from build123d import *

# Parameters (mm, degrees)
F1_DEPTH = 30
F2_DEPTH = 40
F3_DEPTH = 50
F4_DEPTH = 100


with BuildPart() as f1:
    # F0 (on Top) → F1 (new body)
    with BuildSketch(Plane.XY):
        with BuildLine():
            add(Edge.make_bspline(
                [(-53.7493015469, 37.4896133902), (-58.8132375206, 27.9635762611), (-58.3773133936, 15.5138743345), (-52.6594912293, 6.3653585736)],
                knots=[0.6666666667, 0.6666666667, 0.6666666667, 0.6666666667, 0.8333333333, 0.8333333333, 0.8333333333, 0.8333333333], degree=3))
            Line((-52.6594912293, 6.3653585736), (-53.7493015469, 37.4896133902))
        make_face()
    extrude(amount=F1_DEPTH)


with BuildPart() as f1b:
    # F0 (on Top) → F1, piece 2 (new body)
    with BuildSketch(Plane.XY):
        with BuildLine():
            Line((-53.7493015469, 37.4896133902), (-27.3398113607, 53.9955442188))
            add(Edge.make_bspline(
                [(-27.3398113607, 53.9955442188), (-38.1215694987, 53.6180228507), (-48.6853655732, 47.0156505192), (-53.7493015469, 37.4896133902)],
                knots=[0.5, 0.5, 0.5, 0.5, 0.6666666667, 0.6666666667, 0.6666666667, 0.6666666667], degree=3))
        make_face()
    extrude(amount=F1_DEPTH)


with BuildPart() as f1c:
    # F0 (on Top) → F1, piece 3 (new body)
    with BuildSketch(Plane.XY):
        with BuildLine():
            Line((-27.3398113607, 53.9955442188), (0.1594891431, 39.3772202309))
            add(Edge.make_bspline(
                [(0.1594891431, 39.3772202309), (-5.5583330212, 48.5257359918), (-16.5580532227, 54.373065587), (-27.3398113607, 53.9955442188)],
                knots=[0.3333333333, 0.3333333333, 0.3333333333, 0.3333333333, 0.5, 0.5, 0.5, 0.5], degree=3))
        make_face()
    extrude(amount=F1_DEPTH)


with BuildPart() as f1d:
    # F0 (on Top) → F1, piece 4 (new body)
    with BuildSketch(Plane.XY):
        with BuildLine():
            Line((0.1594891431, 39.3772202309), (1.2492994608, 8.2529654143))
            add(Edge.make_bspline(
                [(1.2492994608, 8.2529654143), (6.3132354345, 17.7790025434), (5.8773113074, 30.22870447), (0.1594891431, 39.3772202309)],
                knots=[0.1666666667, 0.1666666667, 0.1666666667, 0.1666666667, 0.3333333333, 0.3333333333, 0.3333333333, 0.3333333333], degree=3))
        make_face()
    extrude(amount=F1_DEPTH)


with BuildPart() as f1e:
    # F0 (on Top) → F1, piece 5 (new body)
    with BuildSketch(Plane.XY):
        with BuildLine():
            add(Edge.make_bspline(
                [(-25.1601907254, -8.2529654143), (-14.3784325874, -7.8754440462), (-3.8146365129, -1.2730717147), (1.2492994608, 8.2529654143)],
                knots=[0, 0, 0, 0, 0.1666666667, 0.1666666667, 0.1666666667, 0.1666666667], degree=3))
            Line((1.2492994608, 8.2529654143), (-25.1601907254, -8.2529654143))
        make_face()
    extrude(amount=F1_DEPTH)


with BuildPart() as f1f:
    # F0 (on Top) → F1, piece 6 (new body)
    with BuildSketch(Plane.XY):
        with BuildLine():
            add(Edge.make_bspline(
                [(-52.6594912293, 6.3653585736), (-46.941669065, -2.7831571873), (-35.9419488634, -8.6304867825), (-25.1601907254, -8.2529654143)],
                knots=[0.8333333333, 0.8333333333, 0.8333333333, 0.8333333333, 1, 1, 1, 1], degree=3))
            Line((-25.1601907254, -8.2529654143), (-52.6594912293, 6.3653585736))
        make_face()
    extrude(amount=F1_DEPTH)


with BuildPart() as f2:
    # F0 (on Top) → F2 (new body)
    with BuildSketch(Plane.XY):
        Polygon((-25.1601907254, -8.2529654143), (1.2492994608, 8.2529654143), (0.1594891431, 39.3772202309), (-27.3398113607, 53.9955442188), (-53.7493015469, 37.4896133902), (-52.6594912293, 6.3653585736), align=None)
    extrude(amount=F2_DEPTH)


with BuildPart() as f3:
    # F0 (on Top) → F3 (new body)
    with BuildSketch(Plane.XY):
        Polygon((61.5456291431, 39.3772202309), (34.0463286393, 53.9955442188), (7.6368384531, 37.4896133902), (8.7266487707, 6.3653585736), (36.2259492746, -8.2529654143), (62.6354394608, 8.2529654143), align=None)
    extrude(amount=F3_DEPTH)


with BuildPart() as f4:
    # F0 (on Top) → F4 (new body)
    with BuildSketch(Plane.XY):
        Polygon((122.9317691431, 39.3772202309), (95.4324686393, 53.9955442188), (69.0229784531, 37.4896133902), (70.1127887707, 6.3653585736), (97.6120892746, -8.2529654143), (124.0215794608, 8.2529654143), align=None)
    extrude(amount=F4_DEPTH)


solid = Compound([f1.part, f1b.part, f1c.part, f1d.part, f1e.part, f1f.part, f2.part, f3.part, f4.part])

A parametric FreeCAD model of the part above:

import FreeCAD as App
import Part
import Sketcher

doc = App.newDocument("Part")
body = doc.addObject("PartDesign::Body", "Body")

# Sketch on XY plane
sketch1 = body.newObject("Sketcher::SketchObject", "Sketch")
sketch1.AttachmentSupport = (doc.getObject("XY_Plane"), [""])
sketch1.MapMode = "FlatFace"
sketch1.addGeometry([
    Part.BSplineCurve([App.Vector(-53.749302, 37.489613, 0), App.Vector(-58.813238, 27.963576, 0), App.Vector(-58.377313, 15.513874, 0), App.Vector(-52.659491, 6.365359, 0)], [4, 4], [0.666666667, 0.833333333], False, 3, [1, 1, 1, 1], False),
    Part.LineSegment(App.Vector(-52.659491, 6.365359, 0), App.Vector(-53.749302, 37.489613, 0)),
], False)
sketch1.addConstraint([
    Sketcher.Constraint("Block", 0),
    Sketcher.Constraint("Coincident", 0, 1, 1, 2),
    Sketcher.Constraint("Coincident", 1, 1, 0, 2),
])
pad1 = body.newObject("PartDesign::Pad", "Pad")
pad1.Profile = sketch1
pad1.Length = 30
body2 = doc.addObject("PartDesign::Body", "Body001")

# Sketch on XY plane
sketch2 = body2.newObject("Sketcher::SketchObject", "Sketch001")
sketch2.AttachmentSupport = (doc.getObject("XY_Plane001"), [""])
sketch2.MapMode = "FlatFace"
sketch2.addGeometry([
    Part.LineSegment(App.Vector(-53.749302, 37.489613, 0), App.Vector(-27.339811, 53.995544, 0)),
    Part.BSplineCurve([App.Vector(-27.339811, 53.995544, 0), App.Vector(-38.121569, 53.618023, 0), App.Vector(-48.685366, 47.015651, 0), App.Vector(-53.749302, 37.489613, 0)], [4, 4], [0.5, 0.666666667], False, 3, [1, 1, 1, 1], False),
], False)
sketch2.addConstraint([
    Sketcher.Constraint("Block", 1),
    Sketcher.Constraint("Coincident", 0, 1, 1, 2),
    Sketcher.Constraint("Coincident", 1, 1, 0, 2),
])
pad2 = body2.newObject("PartDesign::Pad", "Pad001")
pad2.Profile = sketch2
pad2.Length = 30
body3 = doc.addObject("PartDesign::Body", "Body002")

# Sketch on XY plane
sketch3 = body3.newObject("Sketcher::SketchObject", "Sketch002")
sketch3.AttachmentSupport = (doc.getObject("XY_Plane002"), [""])
sketch3.MapMode = "FlatFace"
sketch3.addGeometry([
    Part.LineSegment(App.Vector(-27.339811, 53.995544, 0), App.Vector(0.159489, 39.37722, 0)),
    Part.BSplineCurve([App.Vector(0.159489, 39.37722, 0), App.Vector(-5.558333, 48.525736, 0), App.Vector(-16.558053, 54.373066, 0), App.Vector(-27.339811, 53.995544, 0)], [4, 4], [0.333333333, 0.5], False, 3, [1, 1, 1, 1], False),
], False)
sketch3.addConstraint([
    Sketcher.Constraint("Block", 1),
    Sketcher.Constraint("Coincident", 0, 1, 1, 2),
    Sketcher.Constraint("Coincident", 1, 1, 0, 2),
])
pad3 = body3.newObject("PartDesign::Pad", "Pad002")
pad3.Profile = sketch3
pad3.Length = 30
body4 = doc.addObject("PartDesign::Body", "Body003")

# Sketch on XY plane
sketch4 = body4.newObject("Sketcher::SketchObject", "Sketch003")
sketch4.AttachmentSupport = (doc.getObject("XY_Plane003"), [""])
sketch4.MapMode = "FlatFace"
sketch4.addGeometry([
    Part.LineSegment(App.Vector(0.159489, 39.37722, 0), App.Vector(1.249299, 8.252965, 0)),
    Part.BSplineCurve([App.Vector(1.249299, 8.252965, 0), App.Vector(6.313235, 17.779003, 0), App.Vector(5.877311, 30.228704, 0), App.Vector(0.159489, 39.37722, 0)], [4, 4], [0.166666667, 0.333333333], False, 3, [1, 1, 1, 1], False),
], False)
sketch4.addConstraint([
    Sketcher.Constraint("Block", 1),
    Sketcher.Constraint("Coincident", 0, 1, 1, 2),
    Sketcher.Constraint("Coincident", 1, 1, 0, 2),
])
pad4 = body4.newObject("PartDesign::Pad", "Pad003")
pad4.Profile = sketch4
pad4.Length = 30
body5 = doc.addObject("PartDesign::Body", "Body004")

# Sketch on XY plane
sketch5 = body5.newObject("Sketcher::SketchObject", "Sketch004")
sketch5.AttachmentSupport = (doc.getObject("XY_Plane004"), [""])
sketch5.MapMode = "FlatFace"
sketch5.addGeometry([
    Part.BSplineCurve([App.Vector(-25.160191, -8.252965, 0), App.Vector(-14.378433, -7.875444, 0), App.Vector(-3.814637, -1.273072, 0), App.Vector(1.249299, 8.252965, 0)], [4, 4], [0, 0.166666667], False, 3, [1, 1, 1, 1], False),
    Part.LineSegment(App.Vector(1.249299, 8.252965, 0), App.Vector(-25.160191, -8.252965, 0)),
], False)
sketch5.addConstraint([
    Sketcher.Constraint("Block", 0),
    Sketcher.Constraint("Coincident", 0, 1, 1, 2),
    Sketcher.Constraint("Coincident", 1, 1, 0, 2),
])
pad5 = body5.newObject("PartDesign::Pad", "Pad004")
pad5.Profile = sketch5
pad5.Length = 30
body6 = doc.addObject("PartDesign::Body", "Body005")

# Sketch on XY plane
sketch6 = body6.newObject("Sketcher::SketchObject", "Sketch005")
sketch6.AttachmentSupport = (doc.getObject("XY_Plane005"), [""])
sketch6.MapMode = "FlatFace"
sketch6.addGeometry([
    Part.BSplineCurve([App.Vector(-52.659491, 6.365359, 0), App.Vector(-46.941669, -2.783157, 0), App.Vector(-35.941949, -8.630487, 0), App.Vector(-25.160191, -8.252965, 0)], [4, 4], [0.833333333, 1], False, 3, [1, 1, 1, 1], False),
    Part.LineSegment(App.Vector(-25.160191, -8.252965, 0), App.Vector(-52.659491, 6.365359, 0)),
], False)
sketch6.addConstraint([
    Sketcher.Constraint("Block", 0),
    Sketcher.Constraint("Coincident", 0, 1, 1, 2),
    Sketcher.Constraint("Coincident", 1, 1, 0, 2),
])
pad6 = body6.newObject("PartDesign::Pad", "Pad005")
pad6.Profile = sketch6
pad6.Length = 30
body7 = doc.addObject("PartDesign::Body", "Body006")

# Sketch on XY plane
sketch7 = body7.newObject("Sketcher::SketchObject", "Sketch006")
sketch7.AttachmentSupport = (doc.getObject("XY_Plane006"), [""])
sketch7.MapMode = "FlatFace"
sketch7.addGeometry([
    Part.LineSegment(App.Vector(-25, -8, 0), App.Vector(1, 8, 0)),  # 0
    Part.LineSegment(App.Vector(1, 8, 0), App.Vector(0, 39, 0)),  # 1
    Part.LineSegment(App.Vector(0, 39, 0), App.Vector(-27, 54, 0)),  # 2
    Part.LineSegment(App.Vector(-27, 54, 0), App.Vector(-54, 37, 0)),  # 3
    Part.LineSegment(App.Vector(-54, 37, 0), App.Vector(-53, 6, 0)),  # 4
    Part.LineSegment(App.Vector(-53, 6, 0), App.Vector(-25, -8, 0)),  # 5
], False)
sketch7.addConstraint([
    Sketcher.Constraint("Coincident", 0, 2, 1, 1),
    Sketcher.Constraint("Coincident", 1, 2, 2, 1),
    Sketcher.Constraint("Coincident", 2, 2, 3, 1),
    Sketcher.Constraint("Coincident", 3, 2, 4, 1),
    Sketcher.Constraint("Coincident", 4, 2, 5, 1),
    Sketcher.Constraint("Coincident", 5, 2, 0, 1),
    Sketcher.Constraint("Parallel", 0, 3),
    Sketcher.Constraint("Parallel", 1, 4),
    Sketcher.Constraint("Parallel", 2, 5),
    Sketcher.Constraint("Equal", 0, 1),
    Sketcher.Constraint("Equal", 1, 2),
    Sketcher.Constraint("Equal", 2, 3),
    Sketcher.Constraint("DistanceX", -1, 1, 0, 2, 1.249299),
    Sketcher.Constraint("DistanceX", 3, 2, -1, 1, 53.749302),
    Sketcher.Constraint("DistanceX", 2, 2, 1, 2, 27.499301),
    Sketcher.Constraint("Distance", 0, 31.143329),
    Sketcher.Constraint("DistanceX", -1, 1, 1, 2, 0.159489),
    Sketcher.Constraint("DistanceY", -1, 1, 1, 2, 39.37722),
])
pad7 = body7.newObject("PartDesign::Pad", "Pad006")
pad7.Profile = sketch7
pad7.Length = 40
body8 = doc.addObject("PartDesign::Body", "Body007")

# Sketch on XY plane
sketch8 = body8.newObject("Sketcher::SketchObject", "Sketch007")
sketch8.AttachmentSupport = (doc.getObject("XY_Plane007"), [""])
sketch8.MapMode = "FlatFace"
sketch8.addGeometry([
    Part.LineSegment(App.Vector(62, 39, 0), App.Vector(34, 54, 0)),  # 0
    Part.LineSegment(App.Vector(34, 54, 0), App.Vector(8, 37, 0)),  # 1
    Part.LineSegment(App.Vector(8, 37, 0), App.Vector(9, 6, 0)),  # 2
    Part.LineSegment(App.Vector(9, 6, 0), App.Vector(36, -8, 0)),  # 3
    Part.LineSegment(App.Vector(36, -8, 0), App.Vector(63, 8, 0)),  # 4
    Part.LineSegment(App.Vector(63, 8, 0), App.Vector(62, 39, 0)),  # 5
], False)
sketch8.addConstraint([
    Sketcher.Constraint("Coincident", 0, 2, 1, 1),
    Sketcher.Constraint("Coincident", 1, 2, 2, 1),
    Sketcher.Constraint("Coincident", 2, 2, 3, 1),
    Sketcher.Constraint("Coincident", 3, 2, 4, 1),
    Sketcher.Constraint("Coincident", 4, 2, 5, 1),
    Sketcher.Constraint("Coincident", 5, 2, 0, 1),
    Sketcher.Constraint("Parallel", 0, 3),
    Sketcher.Constraint("Parallel", 1, 4),
    Sketcher.Constraint("Parallel", 2, 5),
    Sketcher.Constraint("Equal", 0, 1),
    Sketcher.Constraint("Equal", 1, 2),
    Sketcher.Constraint("Equal", 2, 3),
    Sketcher.Constraint("DistanceX", 2, 2, 3, 2, 27.499301),
    Sketcher.Constraint("DistanceX", 1, 2, 4, 2, 54.998601),
    Sketcher.Constraint("Distance", 0, 31.143329),
    Sketcher.Constraint("DistanceX", -1, 1, 0, 2, 34.046329),
    Sketcher.Constraint("DistanceX", -1, 1, 1, 2, 7.636838),
    Sketcher.Constraint("DistanceY", -1, 1, 2, 2, 6.365359),
])
pad8 = body8.newObject("PartDesign::Pad", "Pad007")
pad8.Profile = sketch8
pad8.Length = 50
body9 = doc.addObject("PartDesign::Body", "Body008")

# Sketch on XY plane
sketch9 = body9.newObject("Sketcher::SketchObject", "Sketch008")
sketch9.AttachmentSupport = (doc.getObject("XY_Plane008"), [""])
sketch9.MapMode = "FlatFace"
sketch9.addGeometry([
    Part.LineSegment(App.Vector(123, 39, 0), App.Vector(95, 54, 0)),  # 0
    Part.LineSegment(App.Vector(95, 54, 0), App.Vector(69, 37, 0)),  # 1
    Part.LineSegment(App.Vector(69, 37, 0), App.Vector(70, 6, 0)),  # 2
    Part.LineSegment(App.Vector(70, 6, 0), App.Vector(98, -8, 0)),  # 3
    Part.LineSegment(App.Vector(98, -8, 0), App.Vector(124, 8, 0)),  # 4
    Part.LineSegment(App.Vector(124, 8, 0), App.Vector(123, 39, 0)),  # 5
], False)
sketch9.addConstraint([
    Sketcher.Constraint("Coincident", 0, 2, 1, 1),
    Sketcher.Constraint("Coincident", 1, 2, 2, 1),
    Sketcher.Constraint("Coincident", 2, 2, 3, 1),
    Sketcher.Constraint("Coincident", 3, 2, 4, 1),
    Sketcher.Constraint("Coincident", 4, 2, 5, 1),
    Sketcher.Constraint("Coincident", 5, 2, 0, 1),
    Sketcher.Constraint("Parallel", 0, 3),
    Sketcher.Constraint("Parallel", 1, 4),
    Sketcher.Constraint("Parallel", 2, 5),
    Sketcher.Constraint("Equal", 0, 1),
    Sketcher.Constraint("Equal", 1, 2),
    Sketcher.Constraint("Equal", 2, 3),
    Sketcher.Constraint("DistanceX", 2, 2, 3, 2, 27.499301),
    Sketcher.Constraint("DistanceX", 1, 2, 4, 2, 54.998601),
    Sketcher.Constraint("Distance", 0, 31.143329),
    Sketcher.Constraint("DistanceX", -1, 1, 0, 2, 95.432469),
    Sketcher.Constraint("DistanceX", -1, 1, 1, 2, 69.022978),
    Sketcher.Constraint("DistanceY", -1, 1, 2, 2, 6.365359),
])
pad9 = body9.newObject("PartDesign::Pad", "Pad008")
pad9.Profile = sketch9
pad9.Length = 100

doc.recompute()
